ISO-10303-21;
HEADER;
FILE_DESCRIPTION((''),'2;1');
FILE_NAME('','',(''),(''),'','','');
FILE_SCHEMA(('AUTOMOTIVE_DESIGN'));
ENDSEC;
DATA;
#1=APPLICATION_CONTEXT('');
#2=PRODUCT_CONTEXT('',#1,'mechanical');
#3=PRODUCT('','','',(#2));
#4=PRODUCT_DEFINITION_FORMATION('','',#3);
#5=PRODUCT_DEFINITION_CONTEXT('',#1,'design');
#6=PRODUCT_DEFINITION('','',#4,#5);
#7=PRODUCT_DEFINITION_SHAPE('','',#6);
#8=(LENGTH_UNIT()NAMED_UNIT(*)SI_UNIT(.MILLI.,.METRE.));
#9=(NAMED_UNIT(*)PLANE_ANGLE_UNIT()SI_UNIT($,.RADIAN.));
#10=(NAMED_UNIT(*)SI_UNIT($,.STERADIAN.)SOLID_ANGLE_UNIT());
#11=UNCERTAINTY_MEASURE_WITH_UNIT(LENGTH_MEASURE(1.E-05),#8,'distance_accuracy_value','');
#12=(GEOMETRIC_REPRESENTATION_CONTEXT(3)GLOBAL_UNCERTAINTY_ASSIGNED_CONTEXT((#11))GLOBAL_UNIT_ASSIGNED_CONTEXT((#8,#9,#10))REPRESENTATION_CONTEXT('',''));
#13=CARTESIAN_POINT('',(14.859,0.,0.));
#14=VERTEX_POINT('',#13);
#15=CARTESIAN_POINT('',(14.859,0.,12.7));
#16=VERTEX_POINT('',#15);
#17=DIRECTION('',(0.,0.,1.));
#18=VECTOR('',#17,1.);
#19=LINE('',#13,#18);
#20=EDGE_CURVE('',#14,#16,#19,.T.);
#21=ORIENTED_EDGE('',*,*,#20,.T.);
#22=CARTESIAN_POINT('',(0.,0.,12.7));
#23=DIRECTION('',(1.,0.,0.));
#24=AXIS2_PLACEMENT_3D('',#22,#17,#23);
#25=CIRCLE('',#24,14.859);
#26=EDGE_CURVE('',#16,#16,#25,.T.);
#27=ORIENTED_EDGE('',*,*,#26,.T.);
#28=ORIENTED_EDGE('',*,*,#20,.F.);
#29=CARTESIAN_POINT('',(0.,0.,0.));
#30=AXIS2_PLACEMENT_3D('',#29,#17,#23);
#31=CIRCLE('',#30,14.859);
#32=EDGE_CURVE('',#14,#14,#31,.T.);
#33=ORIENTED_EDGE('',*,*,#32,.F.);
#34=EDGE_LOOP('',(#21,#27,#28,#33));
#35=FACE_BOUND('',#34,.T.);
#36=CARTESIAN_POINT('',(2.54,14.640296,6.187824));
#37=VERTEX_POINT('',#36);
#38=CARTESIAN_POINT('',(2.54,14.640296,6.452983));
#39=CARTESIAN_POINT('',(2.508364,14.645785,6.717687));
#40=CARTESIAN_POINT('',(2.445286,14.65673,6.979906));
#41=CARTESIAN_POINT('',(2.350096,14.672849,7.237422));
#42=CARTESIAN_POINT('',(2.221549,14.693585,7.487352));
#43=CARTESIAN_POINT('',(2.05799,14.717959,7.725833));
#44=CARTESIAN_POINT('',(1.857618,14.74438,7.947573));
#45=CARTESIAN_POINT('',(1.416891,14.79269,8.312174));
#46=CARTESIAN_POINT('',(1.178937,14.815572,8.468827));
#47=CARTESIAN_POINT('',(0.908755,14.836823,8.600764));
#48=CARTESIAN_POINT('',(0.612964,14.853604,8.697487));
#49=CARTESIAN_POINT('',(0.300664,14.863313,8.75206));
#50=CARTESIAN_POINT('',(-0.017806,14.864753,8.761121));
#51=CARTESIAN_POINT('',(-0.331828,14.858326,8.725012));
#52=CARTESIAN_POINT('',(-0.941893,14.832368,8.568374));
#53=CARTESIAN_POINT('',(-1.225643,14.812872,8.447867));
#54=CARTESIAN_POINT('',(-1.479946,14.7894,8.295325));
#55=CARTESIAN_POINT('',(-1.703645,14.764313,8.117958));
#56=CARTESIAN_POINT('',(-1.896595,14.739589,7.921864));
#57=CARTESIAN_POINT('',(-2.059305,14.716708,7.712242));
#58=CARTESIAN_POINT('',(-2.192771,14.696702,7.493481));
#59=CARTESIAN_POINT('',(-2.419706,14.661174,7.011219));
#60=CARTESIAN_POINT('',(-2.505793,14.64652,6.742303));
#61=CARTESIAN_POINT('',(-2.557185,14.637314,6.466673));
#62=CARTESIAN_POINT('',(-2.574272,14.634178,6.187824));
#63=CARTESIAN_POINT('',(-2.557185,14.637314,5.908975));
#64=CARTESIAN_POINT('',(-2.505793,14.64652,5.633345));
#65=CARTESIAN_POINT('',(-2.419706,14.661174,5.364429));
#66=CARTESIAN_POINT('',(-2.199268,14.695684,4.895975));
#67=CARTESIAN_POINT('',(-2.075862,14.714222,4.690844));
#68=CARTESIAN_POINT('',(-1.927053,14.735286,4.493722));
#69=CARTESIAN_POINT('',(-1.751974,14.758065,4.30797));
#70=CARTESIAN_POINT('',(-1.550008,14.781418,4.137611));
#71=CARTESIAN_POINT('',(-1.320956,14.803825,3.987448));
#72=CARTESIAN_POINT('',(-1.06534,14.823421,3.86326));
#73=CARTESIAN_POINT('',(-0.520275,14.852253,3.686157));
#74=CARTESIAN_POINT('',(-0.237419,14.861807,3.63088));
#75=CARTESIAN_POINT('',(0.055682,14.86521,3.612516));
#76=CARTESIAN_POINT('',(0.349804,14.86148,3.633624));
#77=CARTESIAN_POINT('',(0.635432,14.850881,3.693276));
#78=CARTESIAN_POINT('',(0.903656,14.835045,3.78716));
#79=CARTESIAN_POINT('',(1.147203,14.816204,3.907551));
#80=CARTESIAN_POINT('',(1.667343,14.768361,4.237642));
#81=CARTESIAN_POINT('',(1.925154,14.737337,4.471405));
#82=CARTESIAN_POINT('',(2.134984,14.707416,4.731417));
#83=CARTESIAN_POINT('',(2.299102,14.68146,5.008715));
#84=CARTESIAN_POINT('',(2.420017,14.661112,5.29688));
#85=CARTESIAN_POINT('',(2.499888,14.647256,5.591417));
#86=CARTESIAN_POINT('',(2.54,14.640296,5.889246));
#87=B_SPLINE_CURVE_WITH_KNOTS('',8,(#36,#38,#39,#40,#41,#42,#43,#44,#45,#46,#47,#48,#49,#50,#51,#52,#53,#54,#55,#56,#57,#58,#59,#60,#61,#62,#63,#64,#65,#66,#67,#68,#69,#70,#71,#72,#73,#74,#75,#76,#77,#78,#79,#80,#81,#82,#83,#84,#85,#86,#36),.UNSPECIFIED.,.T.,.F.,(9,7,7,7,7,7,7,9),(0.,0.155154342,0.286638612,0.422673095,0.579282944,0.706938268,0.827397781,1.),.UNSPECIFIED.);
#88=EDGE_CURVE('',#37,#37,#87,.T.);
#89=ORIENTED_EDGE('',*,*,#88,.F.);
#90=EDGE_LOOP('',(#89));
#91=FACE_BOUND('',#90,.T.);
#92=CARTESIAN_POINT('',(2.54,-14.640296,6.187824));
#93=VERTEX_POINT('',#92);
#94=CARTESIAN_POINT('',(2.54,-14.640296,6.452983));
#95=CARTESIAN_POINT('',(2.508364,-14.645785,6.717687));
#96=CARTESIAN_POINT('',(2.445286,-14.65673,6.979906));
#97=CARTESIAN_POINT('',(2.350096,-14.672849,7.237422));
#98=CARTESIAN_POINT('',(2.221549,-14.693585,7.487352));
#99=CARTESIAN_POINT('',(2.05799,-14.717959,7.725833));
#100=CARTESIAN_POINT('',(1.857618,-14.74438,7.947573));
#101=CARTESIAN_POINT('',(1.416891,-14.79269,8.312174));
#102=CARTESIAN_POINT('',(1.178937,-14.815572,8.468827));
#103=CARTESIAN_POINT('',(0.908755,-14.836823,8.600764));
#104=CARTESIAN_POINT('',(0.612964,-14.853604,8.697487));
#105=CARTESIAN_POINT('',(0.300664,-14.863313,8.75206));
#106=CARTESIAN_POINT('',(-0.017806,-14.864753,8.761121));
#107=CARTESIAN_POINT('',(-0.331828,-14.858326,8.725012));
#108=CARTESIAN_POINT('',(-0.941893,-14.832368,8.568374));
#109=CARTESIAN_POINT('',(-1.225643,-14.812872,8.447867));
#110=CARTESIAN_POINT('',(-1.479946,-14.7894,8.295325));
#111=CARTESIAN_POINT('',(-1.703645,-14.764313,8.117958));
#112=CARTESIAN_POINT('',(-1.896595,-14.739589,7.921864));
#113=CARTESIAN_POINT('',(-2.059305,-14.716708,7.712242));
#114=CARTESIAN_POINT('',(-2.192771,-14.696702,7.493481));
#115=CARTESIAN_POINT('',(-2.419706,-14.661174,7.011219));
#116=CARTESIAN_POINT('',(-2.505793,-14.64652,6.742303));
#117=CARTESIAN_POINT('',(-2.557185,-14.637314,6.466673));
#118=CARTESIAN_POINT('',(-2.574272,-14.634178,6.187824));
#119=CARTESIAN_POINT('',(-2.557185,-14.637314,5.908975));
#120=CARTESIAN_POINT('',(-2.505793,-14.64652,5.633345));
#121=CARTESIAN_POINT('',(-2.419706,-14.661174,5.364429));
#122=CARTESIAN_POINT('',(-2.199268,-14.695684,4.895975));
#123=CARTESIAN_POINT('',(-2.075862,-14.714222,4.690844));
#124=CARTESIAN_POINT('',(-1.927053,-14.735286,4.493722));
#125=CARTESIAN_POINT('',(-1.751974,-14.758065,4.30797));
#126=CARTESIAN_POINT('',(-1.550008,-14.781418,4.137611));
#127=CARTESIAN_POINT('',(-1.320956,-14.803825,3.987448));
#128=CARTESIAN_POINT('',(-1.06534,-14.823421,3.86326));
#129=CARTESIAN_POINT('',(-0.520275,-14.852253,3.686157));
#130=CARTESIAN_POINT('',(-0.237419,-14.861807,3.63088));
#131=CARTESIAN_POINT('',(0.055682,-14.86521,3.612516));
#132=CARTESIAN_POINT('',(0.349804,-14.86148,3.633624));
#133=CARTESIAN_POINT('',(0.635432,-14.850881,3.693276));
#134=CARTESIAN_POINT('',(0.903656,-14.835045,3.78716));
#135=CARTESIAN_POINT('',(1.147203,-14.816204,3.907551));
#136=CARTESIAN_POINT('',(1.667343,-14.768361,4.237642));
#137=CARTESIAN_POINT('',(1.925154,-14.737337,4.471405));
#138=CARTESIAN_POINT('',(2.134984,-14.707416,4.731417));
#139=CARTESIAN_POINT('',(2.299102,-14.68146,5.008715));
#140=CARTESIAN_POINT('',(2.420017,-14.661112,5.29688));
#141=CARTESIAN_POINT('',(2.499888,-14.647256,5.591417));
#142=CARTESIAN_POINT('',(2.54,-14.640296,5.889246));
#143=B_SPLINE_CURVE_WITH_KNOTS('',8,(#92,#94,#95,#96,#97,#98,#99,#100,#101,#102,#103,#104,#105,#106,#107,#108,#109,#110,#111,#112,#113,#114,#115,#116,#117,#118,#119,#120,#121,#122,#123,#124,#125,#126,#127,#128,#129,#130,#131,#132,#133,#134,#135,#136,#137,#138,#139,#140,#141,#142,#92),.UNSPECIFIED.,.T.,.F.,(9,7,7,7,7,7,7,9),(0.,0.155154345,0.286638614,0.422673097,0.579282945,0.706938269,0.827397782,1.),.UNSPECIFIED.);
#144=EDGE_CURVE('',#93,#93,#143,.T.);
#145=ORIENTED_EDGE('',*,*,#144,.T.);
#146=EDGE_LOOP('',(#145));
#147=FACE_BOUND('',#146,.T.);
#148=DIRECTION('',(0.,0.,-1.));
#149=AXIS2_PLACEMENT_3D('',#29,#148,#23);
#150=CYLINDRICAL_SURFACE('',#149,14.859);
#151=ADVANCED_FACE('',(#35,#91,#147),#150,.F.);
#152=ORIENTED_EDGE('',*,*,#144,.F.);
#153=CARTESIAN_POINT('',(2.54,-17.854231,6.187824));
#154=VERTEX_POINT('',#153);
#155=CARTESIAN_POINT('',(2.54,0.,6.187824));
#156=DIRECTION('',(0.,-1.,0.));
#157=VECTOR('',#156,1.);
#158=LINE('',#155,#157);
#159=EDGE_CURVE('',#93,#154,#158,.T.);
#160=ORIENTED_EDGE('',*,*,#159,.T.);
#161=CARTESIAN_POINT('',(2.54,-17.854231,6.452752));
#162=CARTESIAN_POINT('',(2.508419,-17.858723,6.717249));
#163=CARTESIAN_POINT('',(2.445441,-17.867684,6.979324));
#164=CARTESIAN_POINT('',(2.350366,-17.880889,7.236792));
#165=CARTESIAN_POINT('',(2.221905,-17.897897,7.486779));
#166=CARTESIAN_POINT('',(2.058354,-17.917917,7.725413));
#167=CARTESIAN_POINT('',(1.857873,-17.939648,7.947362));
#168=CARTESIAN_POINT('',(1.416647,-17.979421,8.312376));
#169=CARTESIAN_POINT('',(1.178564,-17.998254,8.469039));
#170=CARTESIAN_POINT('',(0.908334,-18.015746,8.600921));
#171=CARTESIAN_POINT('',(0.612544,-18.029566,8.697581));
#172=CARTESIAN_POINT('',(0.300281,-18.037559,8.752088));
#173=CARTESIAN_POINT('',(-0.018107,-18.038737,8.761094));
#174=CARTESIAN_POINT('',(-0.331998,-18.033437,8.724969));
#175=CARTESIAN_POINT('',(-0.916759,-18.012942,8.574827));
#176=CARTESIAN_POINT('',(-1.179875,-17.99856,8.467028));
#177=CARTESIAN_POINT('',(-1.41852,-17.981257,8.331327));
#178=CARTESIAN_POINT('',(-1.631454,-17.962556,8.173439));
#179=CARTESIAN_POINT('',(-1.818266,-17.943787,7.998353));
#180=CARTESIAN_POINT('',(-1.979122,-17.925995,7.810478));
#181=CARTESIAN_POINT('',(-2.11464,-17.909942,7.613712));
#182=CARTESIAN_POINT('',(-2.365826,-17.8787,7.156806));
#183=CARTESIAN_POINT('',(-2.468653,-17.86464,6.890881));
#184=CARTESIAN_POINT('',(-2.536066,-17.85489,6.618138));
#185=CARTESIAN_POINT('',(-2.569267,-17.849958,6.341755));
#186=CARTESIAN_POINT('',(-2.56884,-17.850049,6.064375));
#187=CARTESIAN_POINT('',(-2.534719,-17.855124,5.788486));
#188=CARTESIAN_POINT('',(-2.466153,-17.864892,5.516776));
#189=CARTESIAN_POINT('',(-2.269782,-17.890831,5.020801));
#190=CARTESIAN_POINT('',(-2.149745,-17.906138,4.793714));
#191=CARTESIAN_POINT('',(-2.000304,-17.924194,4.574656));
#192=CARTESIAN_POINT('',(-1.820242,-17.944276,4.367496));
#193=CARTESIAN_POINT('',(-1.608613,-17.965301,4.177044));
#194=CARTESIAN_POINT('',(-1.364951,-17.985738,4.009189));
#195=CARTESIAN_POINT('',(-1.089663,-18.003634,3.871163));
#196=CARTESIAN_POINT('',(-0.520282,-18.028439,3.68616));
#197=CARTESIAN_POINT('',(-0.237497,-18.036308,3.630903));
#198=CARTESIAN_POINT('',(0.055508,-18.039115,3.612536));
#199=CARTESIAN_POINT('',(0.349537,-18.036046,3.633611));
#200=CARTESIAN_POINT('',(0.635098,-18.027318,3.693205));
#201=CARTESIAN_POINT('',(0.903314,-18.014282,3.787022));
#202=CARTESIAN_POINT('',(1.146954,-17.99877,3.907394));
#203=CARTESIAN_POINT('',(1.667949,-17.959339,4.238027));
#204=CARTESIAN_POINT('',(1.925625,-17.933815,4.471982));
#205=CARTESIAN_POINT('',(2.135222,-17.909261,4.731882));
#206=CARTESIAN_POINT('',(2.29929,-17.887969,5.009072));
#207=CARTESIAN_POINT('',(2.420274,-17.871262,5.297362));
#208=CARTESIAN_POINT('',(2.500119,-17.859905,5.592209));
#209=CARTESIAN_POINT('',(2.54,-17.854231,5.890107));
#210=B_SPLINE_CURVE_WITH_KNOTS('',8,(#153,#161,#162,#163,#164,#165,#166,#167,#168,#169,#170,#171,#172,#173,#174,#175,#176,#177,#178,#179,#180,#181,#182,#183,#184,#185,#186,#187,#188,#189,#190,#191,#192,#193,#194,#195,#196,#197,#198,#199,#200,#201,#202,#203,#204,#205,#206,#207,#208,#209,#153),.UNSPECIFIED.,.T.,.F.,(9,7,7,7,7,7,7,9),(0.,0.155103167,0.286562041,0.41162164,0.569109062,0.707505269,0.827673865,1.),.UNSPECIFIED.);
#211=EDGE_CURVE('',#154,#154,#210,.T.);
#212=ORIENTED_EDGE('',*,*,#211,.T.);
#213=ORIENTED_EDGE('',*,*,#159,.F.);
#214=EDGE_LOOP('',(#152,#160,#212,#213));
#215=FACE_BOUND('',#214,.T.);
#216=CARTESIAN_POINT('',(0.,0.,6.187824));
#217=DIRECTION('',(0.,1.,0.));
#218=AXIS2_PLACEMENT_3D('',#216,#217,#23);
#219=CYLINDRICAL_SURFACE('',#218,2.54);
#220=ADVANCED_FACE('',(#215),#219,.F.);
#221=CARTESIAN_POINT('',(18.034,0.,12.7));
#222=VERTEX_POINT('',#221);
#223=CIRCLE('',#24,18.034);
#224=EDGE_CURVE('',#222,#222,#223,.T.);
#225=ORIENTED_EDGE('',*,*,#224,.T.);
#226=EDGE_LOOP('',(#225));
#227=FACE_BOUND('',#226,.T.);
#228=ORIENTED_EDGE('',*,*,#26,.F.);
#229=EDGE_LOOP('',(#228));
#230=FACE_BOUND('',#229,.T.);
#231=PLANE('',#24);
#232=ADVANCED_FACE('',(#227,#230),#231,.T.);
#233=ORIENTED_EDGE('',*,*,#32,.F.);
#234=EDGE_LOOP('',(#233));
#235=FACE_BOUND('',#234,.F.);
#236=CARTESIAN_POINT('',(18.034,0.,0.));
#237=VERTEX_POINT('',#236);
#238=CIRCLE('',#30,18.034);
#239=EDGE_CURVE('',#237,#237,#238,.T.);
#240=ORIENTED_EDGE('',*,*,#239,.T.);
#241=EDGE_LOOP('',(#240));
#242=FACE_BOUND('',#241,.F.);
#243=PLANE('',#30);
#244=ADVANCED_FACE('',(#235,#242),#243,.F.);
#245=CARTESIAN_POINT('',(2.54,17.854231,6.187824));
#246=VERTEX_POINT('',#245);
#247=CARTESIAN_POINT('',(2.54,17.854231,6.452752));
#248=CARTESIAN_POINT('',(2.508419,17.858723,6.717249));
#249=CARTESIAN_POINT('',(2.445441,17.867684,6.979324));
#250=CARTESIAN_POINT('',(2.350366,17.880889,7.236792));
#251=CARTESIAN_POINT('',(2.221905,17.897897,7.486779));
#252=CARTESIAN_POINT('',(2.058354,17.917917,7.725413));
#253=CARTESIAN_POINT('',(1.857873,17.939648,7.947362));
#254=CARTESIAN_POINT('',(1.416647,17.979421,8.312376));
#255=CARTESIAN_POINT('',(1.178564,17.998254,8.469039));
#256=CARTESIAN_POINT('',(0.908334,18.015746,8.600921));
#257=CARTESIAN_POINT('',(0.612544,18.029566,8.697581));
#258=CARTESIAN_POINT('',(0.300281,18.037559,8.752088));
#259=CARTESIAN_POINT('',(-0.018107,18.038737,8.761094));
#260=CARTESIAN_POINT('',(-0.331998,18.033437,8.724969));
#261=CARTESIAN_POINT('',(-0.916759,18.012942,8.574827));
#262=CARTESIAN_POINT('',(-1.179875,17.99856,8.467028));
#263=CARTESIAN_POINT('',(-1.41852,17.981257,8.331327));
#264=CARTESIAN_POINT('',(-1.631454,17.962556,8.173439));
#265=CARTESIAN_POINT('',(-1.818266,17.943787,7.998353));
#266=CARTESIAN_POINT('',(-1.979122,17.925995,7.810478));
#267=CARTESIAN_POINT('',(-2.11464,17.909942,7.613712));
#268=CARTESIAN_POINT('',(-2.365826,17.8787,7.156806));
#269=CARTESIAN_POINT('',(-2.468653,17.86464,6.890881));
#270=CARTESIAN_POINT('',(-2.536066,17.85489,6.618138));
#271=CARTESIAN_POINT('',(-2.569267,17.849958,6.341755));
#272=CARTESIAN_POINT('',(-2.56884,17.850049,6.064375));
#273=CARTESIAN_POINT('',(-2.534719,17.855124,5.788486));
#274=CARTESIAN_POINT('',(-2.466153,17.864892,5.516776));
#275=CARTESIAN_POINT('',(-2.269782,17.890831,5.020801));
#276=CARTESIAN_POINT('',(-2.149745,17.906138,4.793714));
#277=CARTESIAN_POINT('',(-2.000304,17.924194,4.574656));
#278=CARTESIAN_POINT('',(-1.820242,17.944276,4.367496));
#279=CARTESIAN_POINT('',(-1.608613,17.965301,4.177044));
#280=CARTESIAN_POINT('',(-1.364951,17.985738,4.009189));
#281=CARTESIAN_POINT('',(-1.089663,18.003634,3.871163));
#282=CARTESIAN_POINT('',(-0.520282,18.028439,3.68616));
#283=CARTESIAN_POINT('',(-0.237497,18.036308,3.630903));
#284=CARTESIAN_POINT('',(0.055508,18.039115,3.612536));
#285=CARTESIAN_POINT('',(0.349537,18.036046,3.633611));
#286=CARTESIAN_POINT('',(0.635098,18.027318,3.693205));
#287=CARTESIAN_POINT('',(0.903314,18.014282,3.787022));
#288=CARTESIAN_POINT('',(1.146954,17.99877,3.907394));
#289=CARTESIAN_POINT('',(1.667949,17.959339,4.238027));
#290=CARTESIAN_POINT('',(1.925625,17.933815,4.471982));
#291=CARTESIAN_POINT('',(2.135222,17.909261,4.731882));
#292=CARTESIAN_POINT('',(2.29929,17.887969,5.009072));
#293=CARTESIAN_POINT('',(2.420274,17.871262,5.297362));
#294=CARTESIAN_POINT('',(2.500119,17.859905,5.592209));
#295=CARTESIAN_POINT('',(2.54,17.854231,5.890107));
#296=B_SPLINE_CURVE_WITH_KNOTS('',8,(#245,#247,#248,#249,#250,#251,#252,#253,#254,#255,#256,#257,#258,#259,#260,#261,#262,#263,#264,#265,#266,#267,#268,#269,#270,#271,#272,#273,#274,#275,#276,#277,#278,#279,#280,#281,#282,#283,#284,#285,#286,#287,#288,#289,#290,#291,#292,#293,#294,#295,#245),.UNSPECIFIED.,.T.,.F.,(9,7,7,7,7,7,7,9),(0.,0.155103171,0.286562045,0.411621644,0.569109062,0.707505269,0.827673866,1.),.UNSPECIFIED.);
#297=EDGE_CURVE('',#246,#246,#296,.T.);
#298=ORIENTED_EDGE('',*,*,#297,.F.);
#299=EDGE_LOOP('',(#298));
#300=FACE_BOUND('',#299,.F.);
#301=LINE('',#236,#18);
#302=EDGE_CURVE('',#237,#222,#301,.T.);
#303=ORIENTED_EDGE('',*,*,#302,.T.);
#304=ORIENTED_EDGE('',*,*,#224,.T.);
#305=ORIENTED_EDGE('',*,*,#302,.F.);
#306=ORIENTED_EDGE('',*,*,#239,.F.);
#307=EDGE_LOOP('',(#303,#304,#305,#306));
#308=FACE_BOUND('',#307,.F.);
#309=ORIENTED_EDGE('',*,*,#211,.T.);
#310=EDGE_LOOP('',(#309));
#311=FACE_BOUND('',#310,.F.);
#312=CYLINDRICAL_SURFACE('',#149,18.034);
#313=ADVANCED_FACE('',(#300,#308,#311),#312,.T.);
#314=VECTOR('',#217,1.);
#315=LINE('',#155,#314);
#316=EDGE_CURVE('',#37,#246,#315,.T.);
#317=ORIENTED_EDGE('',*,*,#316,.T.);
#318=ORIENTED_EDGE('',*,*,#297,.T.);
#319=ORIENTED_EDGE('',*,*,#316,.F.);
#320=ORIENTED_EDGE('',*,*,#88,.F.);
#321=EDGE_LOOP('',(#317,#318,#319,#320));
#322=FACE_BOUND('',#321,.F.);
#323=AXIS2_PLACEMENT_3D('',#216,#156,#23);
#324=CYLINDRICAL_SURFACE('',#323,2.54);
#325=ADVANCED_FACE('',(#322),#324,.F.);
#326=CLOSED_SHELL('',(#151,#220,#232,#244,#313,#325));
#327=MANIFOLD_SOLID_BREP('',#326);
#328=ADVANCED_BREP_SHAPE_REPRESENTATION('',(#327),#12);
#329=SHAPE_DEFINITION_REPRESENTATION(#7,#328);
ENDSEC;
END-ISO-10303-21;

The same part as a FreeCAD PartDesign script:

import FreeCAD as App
import Part
import Sketcher
Q = App.Units.Quantity

doc = App.newDocument("Part")
params = doc.addObject("Spreadsheet::Sheet", "Params")
for row, (alias, value) in enumerate([
    ("sketch1_diameter", "1.42 in"),
    ("sketch1_diameter2", "1.17 in"),
    ("pad1_length", "0.5 in"),
    ("sketch2_diameter", "0.2 in"),
    ("pocket1_length", "2 in"),
    ("sketch3_diameter", "0.2 in"),
    ("pocket2_length", "2 in"),
], start=1):
    params.set(f"A{row}", alias)
    params.set(f"B{row}", "=" + value)
    params.setAlias(f"B{row}", alias)

body = doc.addObject("PartDesign::Body", "Body")

# Sketch on XY plane
sketch1 = doc.addObject("Sketcher::SketchObject", "Sketch")
body.addObject(sketch1)
sketch1.AttachmentSupport = (doc.XY_Plane, [""])
sketch1.MapMode = "FlatFace"
sketch1.addGeometry([
    Part.Circle(App.Vector(0, 0, 0), App.Vector(0, 0, 1), 18.034),
    Part.Circle(App.Vector(0, 0, 0), App.Vector(0, 0, 1), 14.859),
], False)
sketch1.addConstraint([
    Sketcher.Constraint("Coincident", 0, 3, -1, 1),
    Sketcher.Constraint("Coincident", 1, 3, -1, 1),
    Sketcher.Constraint("Diameter", 0, Q("1.42 in")),
    Sketcher.Constraint("Diameter", 1, Q("1.17 in")),
])
sketch1.setExpression("Constraints[2]", "Params.sketch1_diameter")
sketch1.setExpression("Constraints[3]", "Params.sketch1_diameter2")
pad1 = doc.addObject("PartDesign::Pad", "Pad")
body.addObject(pad1)
pad1.Profile = sketch1
pad1.setExpression("Length", "Params.pad1_length")

# Sketch on XZ plane
sketch2 = doc.addObject("Sketcher::SketchObject", "Sketch001")
body.addObject(sketch2)
sketch2.AttachmentSupport = (doc.XZ_Plane, [""])
sketch2.MapMode = "FlatFace"
sketch2.addGeometry(Part.Circle(App.Vector(0, 6.187824, 0), App.Vector(0, 0, 1), 2.54), False)
sketch2.addConstraint([
    Sketcher.Constraint("PointOnObject", 0, 3, -2),
    Sketcher.Constraint("Diameter", 0, Q("0.2 in")),
    Sketcher.Constraint("DistanceY", -1, 1, 0, 3, 6.187824),
])
sketch2.setExpression("Constraints[1]", "Params.sketch2_diameter")
pocket1 = doc.addObject("PartDesign::Pocket", "Pocket")
body.addObject(pocket1)
pocket1.Profile = sketch2
pocket1.setExpression("Length", "Params.pocket1_length")

# Sketch on XZ plane
sketch3 = doc.addObject("Sketcher::SketchObject", "Sketch002")
body.addObject(sketch3)
sketch3.AttachmentSupport = (doc.XZ_Plane, [""])
sketch3.MapMode = "FlatFace"
sketch3.addGeometry(Part.Circle(App.Vector(0, 6.187824, 0), App.Vector(0, 0, 1), 2.54), False)
sketch3.addConstraint([
    Sketcher.Constraint("PointOnObject", 0, 3, -2),
    Sketcher.Constraint("Diameter", 0, Q("0.2 in")),
    Sketcher.Constraint("DistanceY", -1, 1, 0, 3, 6.187824),
])
sketch3.setExpression("Constraints[1]", "Params.sketch3_diameter")
pocket2 = doc.addObject("PartDesign::Pocket", "Pocket001")
body.addObject(pocket2)
pocket2.Profile = sketch3
pocket2.setExpression("Length", "Params.pocket2_length")
pocket2.Reversed = True

doc.recompute()
